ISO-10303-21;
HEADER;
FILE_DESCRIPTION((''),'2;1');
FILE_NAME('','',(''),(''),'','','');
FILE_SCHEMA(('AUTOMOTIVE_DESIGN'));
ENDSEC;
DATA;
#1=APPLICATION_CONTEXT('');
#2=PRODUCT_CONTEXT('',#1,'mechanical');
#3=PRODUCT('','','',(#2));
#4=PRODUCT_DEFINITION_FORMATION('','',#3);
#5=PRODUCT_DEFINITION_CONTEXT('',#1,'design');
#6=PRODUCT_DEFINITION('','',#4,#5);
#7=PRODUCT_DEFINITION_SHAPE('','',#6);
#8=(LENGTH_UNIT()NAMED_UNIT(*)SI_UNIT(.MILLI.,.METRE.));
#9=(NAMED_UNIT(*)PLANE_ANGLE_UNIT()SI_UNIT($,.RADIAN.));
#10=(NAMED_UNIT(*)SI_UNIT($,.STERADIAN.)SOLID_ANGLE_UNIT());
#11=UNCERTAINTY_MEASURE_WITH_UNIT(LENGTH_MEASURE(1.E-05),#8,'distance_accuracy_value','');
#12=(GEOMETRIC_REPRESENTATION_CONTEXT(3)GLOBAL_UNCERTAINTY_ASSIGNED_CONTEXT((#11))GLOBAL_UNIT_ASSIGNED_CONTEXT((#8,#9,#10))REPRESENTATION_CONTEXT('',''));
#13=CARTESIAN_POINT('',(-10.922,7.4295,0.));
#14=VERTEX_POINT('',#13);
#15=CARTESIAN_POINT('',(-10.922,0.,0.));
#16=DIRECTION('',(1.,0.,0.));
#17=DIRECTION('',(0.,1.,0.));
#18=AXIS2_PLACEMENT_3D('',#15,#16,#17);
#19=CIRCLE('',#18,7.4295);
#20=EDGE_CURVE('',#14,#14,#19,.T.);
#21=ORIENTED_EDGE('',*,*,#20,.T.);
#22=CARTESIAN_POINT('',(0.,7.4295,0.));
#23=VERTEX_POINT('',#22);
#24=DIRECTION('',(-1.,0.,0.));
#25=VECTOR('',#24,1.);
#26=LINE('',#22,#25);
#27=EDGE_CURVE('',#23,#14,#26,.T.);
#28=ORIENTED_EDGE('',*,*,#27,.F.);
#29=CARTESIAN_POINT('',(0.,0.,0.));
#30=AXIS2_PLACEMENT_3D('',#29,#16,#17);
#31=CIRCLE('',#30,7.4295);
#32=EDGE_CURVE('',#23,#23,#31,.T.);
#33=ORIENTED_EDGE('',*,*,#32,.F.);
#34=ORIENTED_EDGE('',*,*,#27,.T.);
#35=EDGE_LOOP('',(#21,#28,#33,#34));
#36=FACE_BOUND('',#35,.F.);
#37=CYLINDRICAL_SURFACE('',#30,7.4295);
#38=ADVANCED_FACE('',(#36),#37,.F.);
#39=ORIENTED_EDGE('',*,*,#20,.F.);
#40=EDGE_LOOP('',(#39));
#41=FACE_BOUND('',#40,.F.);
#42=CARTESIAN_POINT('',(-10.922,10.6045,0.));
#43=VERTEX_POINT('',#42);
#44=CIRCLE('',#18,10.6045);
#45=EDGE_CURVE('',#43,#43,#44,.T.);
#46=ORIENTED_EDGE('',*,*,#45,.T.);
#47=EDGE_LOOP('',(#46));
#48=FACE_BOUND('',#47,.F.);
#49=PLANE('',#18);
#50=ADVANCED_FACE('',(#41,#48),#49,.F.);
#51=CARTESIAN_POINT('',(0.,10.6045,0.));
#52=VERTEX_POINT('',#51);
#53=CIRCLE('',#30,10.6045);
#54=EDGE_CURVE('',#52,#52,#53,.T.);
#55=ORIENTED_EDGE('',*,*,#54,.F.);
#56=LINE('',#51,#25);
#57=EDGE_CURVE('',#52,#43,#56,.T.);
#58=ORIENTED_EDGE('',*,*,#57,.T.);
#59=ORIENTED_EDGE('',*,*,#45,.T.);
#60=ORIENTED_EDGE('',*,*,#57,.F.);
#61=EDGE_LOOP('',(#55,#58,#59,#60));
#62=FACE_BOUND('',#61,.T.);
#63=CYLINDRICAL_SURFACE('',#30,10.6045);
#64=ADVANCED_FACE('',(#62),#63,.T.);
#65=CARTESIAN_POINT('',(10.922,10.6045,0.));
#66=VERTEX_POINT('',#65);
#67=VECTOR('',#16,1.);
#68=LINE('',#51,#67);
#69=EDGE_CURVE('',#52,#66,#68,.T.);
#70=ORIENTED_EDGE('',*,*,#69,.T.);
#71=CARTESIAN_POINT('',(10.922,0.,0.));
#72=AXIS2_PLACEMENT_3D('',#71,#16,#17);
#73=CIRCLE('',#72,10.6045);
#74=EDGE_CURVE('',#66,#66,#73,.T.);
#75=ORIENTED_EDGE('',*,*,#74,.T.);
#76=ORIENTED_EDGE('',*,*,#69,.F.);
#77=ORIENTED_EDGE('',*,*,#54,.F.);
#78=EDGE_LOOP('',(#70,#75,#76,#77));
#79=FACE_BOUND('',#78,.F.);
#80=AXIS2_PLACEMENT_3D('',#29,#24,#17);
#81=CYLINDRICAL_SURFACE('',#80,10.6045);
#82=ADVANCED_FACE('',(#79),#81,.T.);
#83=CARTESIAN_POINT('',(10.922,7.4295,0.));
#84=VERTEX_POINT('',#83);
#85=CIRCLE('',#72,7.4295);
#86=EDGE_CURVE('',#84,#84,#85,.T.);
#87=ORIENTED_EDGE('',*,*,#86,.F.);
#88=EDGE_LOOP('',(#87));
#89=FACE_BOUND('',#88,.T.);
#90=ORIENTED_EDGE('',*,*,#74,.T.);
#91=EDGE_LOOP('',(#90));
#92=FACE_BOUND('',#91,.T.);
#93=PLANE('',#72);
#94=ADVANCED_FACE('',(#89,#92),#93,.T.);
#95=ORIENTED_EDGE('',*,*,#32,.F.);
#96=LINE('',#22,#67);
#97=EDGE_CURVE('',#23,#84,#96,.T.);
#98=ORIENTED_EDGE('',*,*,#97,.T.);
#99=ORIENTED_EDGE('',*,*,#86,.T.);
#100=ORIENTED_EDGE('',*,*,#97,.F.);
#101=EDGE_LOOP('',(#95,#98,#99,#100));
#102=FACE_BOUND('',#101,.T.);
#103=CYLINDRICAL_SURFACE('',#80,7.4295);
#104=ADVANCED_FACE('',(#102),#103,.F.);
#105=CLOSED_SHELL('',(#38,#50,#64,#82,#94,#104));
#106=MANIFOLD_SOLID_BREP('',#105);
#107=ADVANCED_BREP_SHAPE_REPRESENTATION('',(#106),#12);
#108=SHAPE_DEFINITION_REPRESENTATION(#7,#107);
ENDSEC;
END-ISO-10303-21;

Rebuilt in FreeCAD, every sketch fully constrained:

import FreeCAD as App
import Part
import Sketcher

V = App.Vector
Q = App.Units.Quantity

doc = App.newDocument("Part")
body = doc.addObject("PartDesign::Body", "Body")

# Sketch on YZ plane
sketch1 = doc.addObject("Sketcher::SketchObject", "Sketch")
body.addObject(sketch1)
sketch1.AttachmentSupport = (doc.YZ_Plane, [""])
sketch1.MapMode = "FlatFace"
sketch1.addGeometry(Part.Circle(V(0, 0, 0), V(0, 0, 1), 11), False)
sketch1.addGeometry(Part.Circle(V(0, 0, 0), V(0, 0, 1), 7), False)
sketch1.addConstraint(Sketcher.Constraint("Coincident", 0, 3, -1, 1))
sketch1.addConstraint(Sketcher.Constraint("Coincident", 1, 3, -1, 1))
sketch1.addConstraint(Sketcher.Constraint("Diameter", 1, Q("0.585 in")))
sketch1.addConstraint(Sketcher.Constraint("Diameter", 0, Q("0.835 in")))
pad1 = doc.addObject("PartDesign::Pad", "Pad")
body.addObject(pad1)
pad1.Profile = sketch1
pad1.Length = Q("0.86 in")
pad1.Midplane = True

doc.recompute()
